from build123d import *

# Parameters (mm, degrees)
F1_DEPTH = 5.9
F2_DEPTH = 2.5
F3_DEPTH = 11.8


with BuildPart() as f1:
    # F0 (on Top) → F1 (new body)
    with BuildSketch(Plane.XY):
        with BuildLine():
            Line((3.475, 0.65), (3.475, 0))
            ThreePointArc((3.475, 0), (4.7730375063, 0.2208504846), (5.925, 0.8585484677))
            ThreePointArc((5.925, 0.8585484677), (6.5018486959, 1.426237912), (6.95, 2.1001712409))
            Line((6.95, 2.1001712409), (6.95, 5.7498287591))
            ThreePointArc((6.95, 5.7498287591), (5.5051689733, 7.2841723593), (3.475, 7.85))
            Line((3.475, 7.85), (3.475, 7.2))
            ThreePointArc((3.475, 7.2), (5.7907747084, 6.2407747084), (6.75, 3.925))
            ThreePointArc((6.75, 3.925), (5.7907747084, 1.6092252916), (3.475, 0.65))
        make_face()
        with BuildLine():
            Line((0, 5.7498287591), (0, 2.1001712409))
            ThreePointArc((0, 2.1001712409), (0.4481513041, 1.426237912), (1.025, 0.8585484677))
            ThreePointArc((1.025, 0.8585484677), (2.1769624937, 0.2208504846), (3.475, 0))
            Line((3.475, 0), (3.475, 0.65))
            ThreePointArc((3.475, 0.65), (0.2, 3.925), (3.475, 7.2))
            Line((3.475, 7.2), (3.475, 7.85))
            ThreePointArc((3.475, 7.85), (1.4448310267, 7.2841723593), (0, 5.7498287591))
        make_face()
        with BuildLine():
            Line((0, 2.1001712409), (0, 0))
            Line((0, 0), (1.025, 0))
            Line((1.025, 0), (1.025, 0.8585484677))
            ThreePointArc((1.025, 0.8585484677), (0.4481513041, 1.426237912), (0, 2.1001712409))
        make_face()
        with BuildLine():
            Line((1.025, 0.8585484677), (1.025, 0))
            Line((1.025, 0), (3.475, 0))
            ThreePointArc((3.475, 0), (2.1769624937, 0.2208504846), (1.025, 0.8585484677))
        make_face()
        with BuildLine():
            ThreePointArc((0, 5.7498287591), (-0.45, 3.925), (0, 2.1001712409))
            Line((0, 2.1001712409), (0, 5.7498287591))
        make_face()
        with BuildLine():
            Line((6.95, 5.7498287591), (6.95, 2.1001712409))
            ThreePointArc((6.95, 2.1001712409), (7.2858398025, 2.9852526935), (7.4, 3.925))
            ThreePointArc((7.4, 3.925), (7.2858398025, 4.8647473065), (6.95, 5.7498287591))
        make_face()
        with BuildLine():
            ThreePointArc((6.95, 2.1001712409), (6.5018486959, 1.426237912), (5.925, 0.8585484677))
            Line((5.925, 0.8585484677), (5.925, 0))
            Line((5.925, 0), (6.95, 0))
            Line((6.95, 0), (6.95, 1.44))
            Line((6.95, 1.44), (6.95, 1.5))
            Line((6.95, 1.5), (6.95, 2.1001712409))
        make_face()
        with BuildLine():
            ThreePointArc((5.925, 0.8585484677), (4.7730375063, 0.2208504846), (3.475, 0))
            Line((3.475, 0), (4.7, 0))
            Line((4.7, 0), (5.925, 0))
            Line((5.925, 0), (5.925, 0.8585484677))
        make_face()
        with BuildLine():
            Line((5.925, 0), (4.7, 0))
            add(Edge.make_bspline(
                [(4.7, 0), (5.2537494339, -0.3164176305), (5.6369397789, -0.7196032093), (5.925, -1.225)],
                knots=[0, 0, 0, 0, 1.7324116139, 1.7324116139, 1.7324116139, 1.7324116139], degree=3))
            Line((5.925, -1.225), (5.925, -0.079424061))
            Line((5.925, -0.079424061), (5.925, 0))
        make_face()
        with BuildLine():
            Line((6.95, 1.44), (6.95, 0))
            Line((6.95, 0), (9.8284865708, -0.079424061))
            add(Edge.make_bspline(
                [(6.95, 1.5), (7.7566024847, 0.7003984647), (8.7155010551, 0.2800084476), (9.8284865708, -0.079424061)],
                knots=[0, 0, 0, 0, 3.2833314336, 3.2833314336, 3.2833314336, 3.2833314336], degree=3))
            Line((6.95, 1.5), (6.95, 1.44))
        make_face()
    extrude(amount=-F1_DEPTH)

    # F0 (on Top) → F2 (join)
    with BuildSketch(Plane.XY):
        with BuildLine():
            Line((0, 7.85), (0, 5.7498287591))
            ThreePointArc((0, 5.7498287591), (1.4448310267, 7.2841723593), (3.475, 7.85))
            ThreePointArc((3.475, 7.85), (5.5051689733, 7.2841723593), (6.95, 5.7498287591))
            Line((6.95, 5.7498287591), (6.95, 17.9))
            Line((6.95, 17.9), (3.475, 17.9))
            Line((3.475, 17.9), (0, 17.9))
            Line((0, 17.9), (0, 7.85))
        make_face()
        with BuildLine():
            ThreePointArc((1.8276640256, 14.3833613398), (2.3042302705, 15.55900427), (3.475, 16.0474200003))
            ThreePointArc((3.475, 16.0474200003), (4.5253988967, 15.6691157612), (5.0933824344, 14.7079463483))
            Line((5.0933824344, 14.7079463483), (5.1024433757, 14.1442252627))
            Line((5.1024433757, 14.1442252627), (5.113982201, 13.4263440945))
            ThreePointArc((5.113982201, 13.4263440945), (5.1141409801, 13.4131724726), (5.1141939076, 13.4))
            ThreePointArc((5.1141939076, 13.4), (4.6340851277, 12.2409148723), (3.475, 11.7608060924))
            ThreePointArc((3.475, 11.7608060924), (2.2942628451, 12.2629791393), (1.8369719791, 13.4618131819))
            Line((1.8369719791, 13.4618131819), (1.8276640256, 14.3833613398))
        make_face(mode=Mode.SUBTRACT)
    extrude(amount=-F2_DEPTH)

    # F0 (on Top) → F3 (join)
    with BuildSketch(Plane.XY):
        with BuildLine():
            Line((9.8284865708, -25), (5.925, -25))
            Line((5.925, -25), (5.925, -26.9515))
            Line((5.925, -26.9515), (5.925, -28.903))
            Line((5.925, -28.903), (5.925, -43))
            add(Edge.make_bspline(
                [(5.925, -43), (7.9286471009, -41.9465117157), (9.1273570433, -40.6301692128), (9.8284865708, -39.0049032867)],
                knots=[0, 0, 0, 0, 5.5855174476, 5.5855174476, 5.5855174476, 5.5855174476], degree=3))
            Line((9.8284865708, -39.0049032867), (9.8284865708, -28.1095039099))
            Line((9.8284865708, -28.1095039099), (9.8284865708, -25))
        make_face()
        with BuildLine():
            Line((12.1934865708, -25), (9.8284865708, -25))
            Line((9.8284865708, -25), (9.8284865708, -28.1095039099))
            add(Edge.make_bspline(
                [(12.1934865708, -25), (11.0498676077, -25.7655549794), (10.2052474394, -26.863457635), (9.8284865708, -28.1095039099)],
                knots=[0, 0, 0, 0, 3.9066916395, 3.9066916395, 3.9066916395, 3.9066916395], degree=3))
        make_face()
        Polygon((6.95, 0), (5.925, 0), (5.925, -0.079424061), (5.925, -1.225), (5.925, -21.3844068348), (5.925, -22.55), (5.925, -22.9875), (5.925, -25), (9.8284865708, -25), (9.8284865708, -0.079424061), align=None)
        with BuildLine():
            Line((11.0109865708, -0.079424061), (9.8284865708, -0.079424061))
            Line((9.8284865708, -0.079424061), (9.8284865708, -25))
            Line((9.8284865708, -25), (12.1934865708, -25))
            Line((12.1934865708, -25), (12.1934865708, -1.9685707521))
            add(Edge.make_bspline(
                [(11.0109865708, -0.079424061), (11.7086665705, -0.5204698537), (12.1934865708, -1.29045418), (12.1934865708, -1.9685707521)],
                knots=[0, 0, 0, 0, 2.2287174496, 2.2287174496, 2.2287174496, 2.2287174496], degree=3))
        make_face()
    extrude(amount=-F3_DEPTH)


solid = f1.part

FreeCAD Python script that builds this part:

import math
import FreeCAD as App
import Part
import Sketcher
Q = App.Units.Quantity

doc = App.newDocument("Part")
body = doc.addObject("PartDesign::Body", "Body")

# Sketch on XY plane
sketch1 = body.newObject("Sketcher::SketchObject", "Sketch")
sketch1.AttachmentSupport = (doc.getObject("XY_Plane"), [""])
sketch1.MapMode = "FlatFace"
sketch1.addGeometry([
    Part.LineSegment(App.Vector(6.95, 1.5, 0), App.Vector(6.95, 2.100171, 0)),  # 0
    Part.ArcOfCircle(Part.Circle(App.Vector(3.475, 3.925, 0), App.Vector(0, 0, 1), 3.925), math.radians(-27.705338), math.radians(0)),  # 1
    Part.ArcOfCircle(Part.Circle(App.Vector(3.475, 3.925, 0), App.Vector(0, 0, 1), 3.925), math.radians(0), math.radians(27.705338)),  # 2
    Part.ArcOfCircle(Part.Circle(App.Vector(3.475, 3.925, 0), App.Vector(0, 0, 1), 3.925), math.radians(27.705338), math.radians(90)),  # 3
    Part.ArcOfCircle(Part.Circle(App.Vector(3.475, 3.925, 0), App.Vector(0, 0, 1), 3.925), math.radians(90), math.radians(152.294662)),  # 4
    Part.ArcOfCircle(Part.Circle(App.Vector(3.475, 3.925, 0), App.Vector(0, 0, 1), 3.925), math.radians(152.294662), math.radians(207.705338)),  # 5
    Part.LineSegment(App.Vector(0, 2.100171, 0), App.Vector(0, 0, 0)),  # 6
    Part.LineSegment(App.Vector(0, 0, 0), App.Vector(4.7, 0, 0)),  # 7
    Part.BSplineCurve([App.Vector(4.7, 0, 0), App.Vector(5.253749, -0.316418, 0), App.Vector(5.63694, -0.719603, 0), App.Vector(5.925, -1.225, 0)], [4, 4], [0, 1.732411614], False, 3, [1, 1, 1, 1], False),  # 8
    Part.LineSegment(App.Vector(5.925, -1.225, 0), App.Vector(5.925, 0, 0)),  # 9
    Part.LineSegment(App.Vector(5.925, 0, 0), App.Vector(6.95, 0, 0)),  # 10
    Part.LineSegment(App.Vector(6.95, 0, 0), App.Vector(9.828487, -0.079424, 0)),  # 11
    Part.BSplineCurve([App.Vector(6.95, 1.5, 0), App.Vector(7.756602, 0.700398, 0), App.Vector(8.715501, 0.280008, 0), App.Vector(9.828487, -0.079424, 0)], [4, 4], [0, 3.283331434], False, 3, [1, 1, 1, 1], False),  # 12
    Part.ArcOfCircle(Part.Circle(App.Vector(3.475, 3.925, 0), App.Vector(0, 0, 1), 3.275), math.radians(0), math.radians(90)),  # 13
    Part.ArcOfCircle(Part.Circle(App.Vector(3.475, 3.925, 0), App.Vector(0, 0, 1), 3.275), math.radians(-90), math.radians(0)),  # 14
    Part.ArcOfCircle(Part.Circle(App.Vector(3.475, 3.925, 0), App.Vector(0, 0, 1), 3.275), math.radians(90), math.radians(270)),  # 15
], False)
sketch1.addConstraint([
    Sketcher.Constraint("Block", 8),
    Sketcher.Constraint("Block", 12),
    Sketcher.Constraint("Coincident", 0, 2, 1, 1),
    Sketcher.Constraint("Tangent", 1, 2, 2, 1),
    Sketcher.Constraint("Tangent", 2, 2, 3, 1),
    Sketcher.Constraint("Tangent", 3, 2, 4, 1),
    Sketcher.Constraint("Tangent", 4, 2, 5, 1),
    Sketcher.Constraint("Coincident", 5, 2, 6, 1),
    Sketcher.Constraint("Coincident", 6, 2, 7, 1),
    Sketcher.Constraint("Coincident", 7, 2, 8, 1),
    Sketcher.Constraint("Coincident", 8, 2, 9, 1),
    Sketcher.Constraint("Coincident", 9, 2, 10, 1),
    Sketcher.Constraint("Coincident", 10, 2, 11, 1),
    Sketcher.Constraint("Coincident", 11, 2, 12, 2),
    Sketcher.Constraint("Coincident", 12, 1, 0, 1),
    Sketcher.Constraint("Tangent", 13, 1, 14, 2),
    Sketcher.Constraint("Tangent", 14, 1, 15, 2),
    Sketcher.Constraint("Tangent", 15, 1, 13, 2),
    Sketcher.Constraint("Vertical", 0),
    Sketcher.Constraint("Vertical", 6),
    Sketcher.Constraint("Horizontal", 7),
    Sketcher.Constraint("Vertical", 9),
    Sketcher.Constraint("Horizontal", 10),
    Sketcher.Constraint("Coincident", 3, 3, 1, 3),
    Sketcher.Constraint("Coincident", 5, 3, 1, 3),
    Sketcher.Constraint("Coincident", 13, 3, 1, 3),
    Sketcher.Constraint("PointOnObject", 4, 2, -2),
    Sketcher.Constraint("PointOnObject", 5, 2, -2),
    Sketcher.Constraint("PointOnObject", 9, 2, -1),
    Sketcher.Constraint("Horizontal", 15, 3, 1, 2),
    Sketcher.Constraint("Horizontal", 2, 2, 4, 2),
    Sketcher.Constraint("Horizontal", 0, 2, 5, 2),
    Sketcher.Constraint("Horizontal", 1, 2, 13, 1),
    Sketcher.Constraint("Vertical", 15, 3, 3, 2),
    Sketcher.Constraint("Vertical", 2, 2, 10, 2),
    Sketcher.Constraint("Vertical", 3, 2, 14, 1),
    Sketcher.Constraint("Vertical", 14, 1, 15, 1),
    Sketcher.Constraint("Radius", 1, Q("3.925 mm")),
    Sketcher.Constraint("Radius", 13, Q("3.275 mm")),
    Sketcher.Constraint("DistanceY", -1, 1, 15, 1, Q("7.2 mm")),
])
pad1 = body.newObject("PartDesign::Pad", "Pad")
pad1.Profile = sketch1
pad1.Length = 5.9
pad1.Reversed = True

# Sketch on XY plane
sketch2 = body.newObject("Sketcher::SketchObject", "Sketch001")
sketch2.AttachmentSupport = (doc.getObject("XY_Plane"), [""])
sketch2.MapMode = "FlatFace"
sketch2.addGeometry([
    Part.ArcOfCircle(Part.Circle(App.Vector(3.475, 3.925, 0), App.Vector(0, 0, 1), 3.925), math.radians(90), math.radians(152)),  # 0
    Part.ArcOfCircle(Part.Circle(App.Vector(3.475, 3.925, 0), App.Vector(0, 0, 1), 3.925), math.radians(28), math.radians(90)),  # 1
    Part.LineSegment(App.Vector(6.95, 5.75, 0), App.Vector(6.95, 17.9, 0)),  # 2
    Part.LineSegment(App.Vector(6.95, 17.9, 0), App.Vector(0, 17.9, 0)),  # 3
    Part.LineSegment(App.Vector(0, 17.9, 0), App.Vector(0, 5.75, 0)),  # 4
    Part.LineSegment(App.Vector(1.837, 13.462, 0), App.Vector(1.828, 14.383, 0)),  # 5
    Part.ArcOfCircle(Part.Circle(App.Vector(3.475, 14.4, 0), App.Vector(0, 0, 1), 1.647), math.radians(90), math.radians(181)),  # 6
    Part.ArcOfCircle(Part.Circle(App.Vector(3.475, 14.4, 0), App.Vector(0, 0, 1), 1.647), math.radians(11), math.radians(90)),  # 7
    Part.LineSegment(App.Vector(5.093, 14.708, 0), App.Vector(5.102, 14.144, 0)),  # 8
    Part.LineSegment(App.Vector(5.102, 14.144, 0), App.Vector(5.114, 13.426, 0)),  # 9
    Part.ArcOfCircle(Part.Circle(App.Vector(3.475, 13.4, 0), App.Vector(0, 0, 1), 1.639), math.radians(0), math.radians(0.92)),  # 10
    Part.ArcOfCircle(Part.Circle(App.Vector(3.475, 13.4, 0), App.Vector(0, 0, 1), 1.639), math.radians(-90), math.radians(0)),  # 11
    Part.ArcOfCircle(Part.Circle(App.Vector(3.475, 13.4, 0), App.Vector(0, 0, 1), 1.639), math.radians(178), math.radians(270)),  # 12
], False)
sketch2.addConstraint([
    Sketcher.Constraint("Tangent", 0, 1, 1, 2),
    Sketcher.Constraint("Coincident", 1, 1, 2, 1),
    Sketcher.Constraint("Coincident", 2, 2, 3, 1),
    Sketcher.Constraint("Coincident", 3, 2, 4, 1),
    Sketcher.Constraint("Coincident", 4, 2, 0, 2),
    Sketcher.Constraint("Tangent", 5, 2, 6, 2),
    Sketcher.Constraint("Tangent", 6, 1, 7, 2),
    Sketcher.Constraint("Coincident", 7, 1, 8, 1),
    Sketcher.Constraint("Coincident", 8, 2, 9, 1),
    Sketcher.Constraint("Tangent", 9, 2, 10, 2),
    Sketcher.Constraint("Tangent", 10, 1, 11, 2),
    Sketcher.Constraint("Tangent", 11, 1, 12, 2),
    Sketcher.Constraint("Coincident", 12, 1, 5, 1),
    Sketcher.Constraint("Vertical", 2),
    Sketcher.Constraint("Horizontal", 3),
    Sketcher.Constraint("Vertical", 4),
    Sketcher.Constraint("Coincident", 12, 3, 10, 3),
    Sketcher.Constraint("Equal", 0, 1),
    Sketcher.Constraint("Equal", 6, 7),
    Sketcher.Constraint("PointOnObject", 3, 2, -2),
    Sketcher.Constraint("Parallel", 8, 9),
    Sketcher.Constraint("Horizontal", 1, 1, 4, 2),
    Sketcher.Constraint("Horizontal", 12, 3, 10, 1),
    Sketcher.Constraint("Vertical", 1, 3, 6, 3),
    Sketcher.Constraint("Vertical", 7, 3, 10, 3),
    Sketcher.Constraint("Vertical", 12, 3, 0, 1),
    Sketcher.Constraint("Vertical", 0, 1, 6, 1),
    Sketcher.Constraint("Vertical", 6, 1, 11, 1),
    Sketcher.Constraint("Radius", 0, Q("3.925 mm")),
    Sketcher.Constraint("DistanceY", 10, 3, 6, 3, Q("1 mm")),
    Sketcher.Constraint("DistanceX", 3, 2, 3, 1, Q("6.95 mm")),
    Sketcher.Constraint("DistanceY", -1, 1, 6, 3, Q("14.4 mm")),
    Sketcher.Constraint("DistanceY", -1, 1, 2, 2, Q("17.9 mm")),
    Sketcher.Constraint("DistanceY", -1, 1, 0, 1, Q("7.85 mm")),
    Sketcher.Constraint("Radius", 6, Q("1.64742 mm")),
    Sketcher.Constraint("Radius", 10, Q("1.639193 mm")),
    Sketcher.Constraint("DistanceX", 7, 1, 9, 2, Q("0.0206 mm")),
    Sketcher.Constraint("DistanceY", -1, 1, 5, 2, Q("14.383361 mm")),
    Sketcher.Constraint("DistanceX", 7, 1, 8, 2, Q("0.009061 mm")),
])
pad2 = body.newObject("PartDesign::Pad", "Pad001")
pad2.Profile = sketch2
pad2.Length = 2.5
pad2.Reversed = True

# Sketch on XY plane
sketch3 = body.newObject("Sketcher::SketchObject", "Sketch002")
sketch3.AttachmentSupport = (doc.getObject("XY_Plane"), [""])
sketch3.MapMode = "FlatFace"
sketch3.addGeometry([
    Part.BSplineCurve([App.Vector(5.925, -43, 0), App.Vector(7.928647, -41.946512, 0), App.Vector(9.127357, -40.630169, 0), App.Vector(9.828487, -39.004903, 0)], [4, 4], [0, 5.585517448], False, 3, [1, 1, 1, 1], False),  # 0
    Part.LineSegment(App.Vector(9.828487, -39.004903, 0), App.Vector(9.828487, -28.109504, 0)),  # 1
    Part.BSplineCurve([App.Vector(12.193487, -25, 0), App.Vector(11.049868, -25.765555, 0), App.Vector(10.205247, -26.863458, 0), App.Vector(9.828487, -28.109504, 0)], [4, 4], [0, 3.906691639], False, 3, [1, 1, 1, 1], False),  # 2
    Part.LineSegment(App.Vector(12.193487, -25, 0), App.Vector(12.193487, -1.968571, 0)),  # 3
    Part.BSplineCurve([App.Vector(11.010987, -0.079424, 0), App.Vector(11.708667, -0.52047, 0), App.Vector(12.193487, -1.290454, 0), App.Vector(12.193487, -1.968571, 0)], [4, 4], [0, 2.22871745], False, 3, [1, 1, 1, 1], False),  # 4
    Part.LineSegment(App.Vector(11.010987, -0.079424, 0), App.Vector(9.828487, -0.079424, 0)),  # 5
    Part.LineSegment(App.Vector(9.828487, -0.079424, 0), App.Vector(6.95, 0, 0)),  # 6
    Part.LineSegment(App.Vector(6.95, 0, 0), App.Vector(5.925, 0, 0)),  # 7
    Part.LineSegment(App.Vector(5.925, 0, 0), App.Vector(5.925, -43, 0)),  # 8
], False)
sketch3.addConstraint([
    Sketcher.Constraint("Block", 0),
    Sketcher.Constraint("Block", 2),
    Sketcher.Constraint("Block", 4),
    Sketcher.Constraint("Coincident", 0, 2, 1, 1),
    Sketcher.Constraint("Coincident", 1, 2, 2, 2),
    Sketcher.Constraint("Coincident", 2, 1, 3, 1),
    Sketcher.Constraint("Coincident", 3, 2, 4, 2),
    Sketcher.Constraint("Coincident", 4, 1, 5, 1),
    Sketcher.Constraint("Coincident", 5, 2, 6, 1),
    Sketcher.Constraint("Coincident", 6, 2, 7, 1),
    Sketcher.Constraint("Coincident", 7, 2, 8, 1),
    Sketcher.Constraint("Coincident", 8, 2, 0, 1),
    Sketcher.Constraint("Horizontal", 5),
    Sketcher.Constraint("Horizontal", 7),
    Sketcher.Constraint("Vertical", 8),
    Sketcher.Constraint("PointOnObject", 6, 2, -1),
    Sketcher.Constraint("Vertical", 1, 2, 5, 2),
    Sketcher.Constraint("DistanceX", 7, 2, 7, 1, Q("1.025 mm")),
])
pad3 = body.newObject("PartDesign::Pad", "Pad002")
pad3.Profile = sketch3
pad3.Length = 11.8
pad3.Reversed = True

doc.recompute()
